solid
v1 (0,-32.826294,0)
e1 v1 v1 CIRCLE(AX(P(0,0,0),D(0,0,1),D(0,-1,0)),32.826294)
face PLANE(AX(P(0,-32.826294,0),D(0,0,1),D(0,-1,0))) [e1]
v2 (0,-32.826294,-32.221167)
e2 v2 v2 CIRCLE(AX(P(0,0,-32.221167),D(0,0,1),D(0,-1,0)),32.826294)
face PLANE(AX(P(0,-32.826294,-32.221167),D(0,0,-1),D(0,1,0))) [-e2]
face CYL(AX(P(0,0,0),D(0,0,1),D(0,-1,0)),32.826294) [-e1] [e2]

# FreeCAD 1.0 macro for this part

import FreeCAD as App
import Part
import Sketcher

V = App.Vector
Q = App.Units.Quantity


def add_polygon(sketch, points):
    """Adds a closed chain of lines whose ends are joined by coincident constraints."""
    first, n = sketch.GeometryCount, len(points)
    for a, b in zip(points, points[1:] + points[:1]):
        sketch.addGeometry(Part.LineSegment(App.Vector(*a, 0), App.Vector(*b, 0)), False)
    for i in range(n):
        sketch.addConstraint(Sketcher.Constraint("Coincident", first + i, 2, first + (i + 1) % n, 1))

doc = App.newDocument("Part")
params = doc.addObject("Spreadsheet::Sheet", "Params")
for row, (alias, value) in enumerate([
    ("revolution_angle", "360 deg"),
], start=1):
    params.set(f"A{row}", alias)
    params.set(f"B{row}", "=" + value)
    params.setAlias(f"B{row}", alias)

body = doc.addObject("PartDesign::Body", "Body")

# Sketch on YZ plane
sketch1 = body.newObject("Sketcher::SketchObject", "Sketch")
sketch1.AttachmentSupport = (doc.getObject("YZ_Plane"), [""])
sketch1.MapMode = "FlatFace"
add_polygon(sketch1, [(-33, 0), (-33, -32), (0, -32), (0, 0)])  # lines 0-3
sketch1.addConstraint(Sketcher.Constraint("Vertical", 0))
sketch1.addConstraint(Sketcher.Constraint("Horizontal", 1))
sketch1.addConstraint(Sketcher.Constraint("Vertical", 2))
sketch1.addConstraint(Sketcher.Constraint("Horizontal", 3))
sketch1.addConstraint(Sketcher.Constraint("Coincident", 2, 2, -1, 1))
sketch1.addConstraint(Sketcher.Constraint("DistanceX", 1, 1, 1, 2, Q("32.826294 mm")))
sketch1.addConstraint(Sketcher.Constraint("DistanceY", 0, 2, 0, 1, Q("32.221167 mm")))
revolution = body.newObject("PartDesign::Revolution", "Revolution")
revolution.Profile = sketch1
revolution.ReferenceAxis = (sketch1, ["V_Axis"])
revolution.setExpression("Angle", "Params.revolution_angle")

doc.recompute()
